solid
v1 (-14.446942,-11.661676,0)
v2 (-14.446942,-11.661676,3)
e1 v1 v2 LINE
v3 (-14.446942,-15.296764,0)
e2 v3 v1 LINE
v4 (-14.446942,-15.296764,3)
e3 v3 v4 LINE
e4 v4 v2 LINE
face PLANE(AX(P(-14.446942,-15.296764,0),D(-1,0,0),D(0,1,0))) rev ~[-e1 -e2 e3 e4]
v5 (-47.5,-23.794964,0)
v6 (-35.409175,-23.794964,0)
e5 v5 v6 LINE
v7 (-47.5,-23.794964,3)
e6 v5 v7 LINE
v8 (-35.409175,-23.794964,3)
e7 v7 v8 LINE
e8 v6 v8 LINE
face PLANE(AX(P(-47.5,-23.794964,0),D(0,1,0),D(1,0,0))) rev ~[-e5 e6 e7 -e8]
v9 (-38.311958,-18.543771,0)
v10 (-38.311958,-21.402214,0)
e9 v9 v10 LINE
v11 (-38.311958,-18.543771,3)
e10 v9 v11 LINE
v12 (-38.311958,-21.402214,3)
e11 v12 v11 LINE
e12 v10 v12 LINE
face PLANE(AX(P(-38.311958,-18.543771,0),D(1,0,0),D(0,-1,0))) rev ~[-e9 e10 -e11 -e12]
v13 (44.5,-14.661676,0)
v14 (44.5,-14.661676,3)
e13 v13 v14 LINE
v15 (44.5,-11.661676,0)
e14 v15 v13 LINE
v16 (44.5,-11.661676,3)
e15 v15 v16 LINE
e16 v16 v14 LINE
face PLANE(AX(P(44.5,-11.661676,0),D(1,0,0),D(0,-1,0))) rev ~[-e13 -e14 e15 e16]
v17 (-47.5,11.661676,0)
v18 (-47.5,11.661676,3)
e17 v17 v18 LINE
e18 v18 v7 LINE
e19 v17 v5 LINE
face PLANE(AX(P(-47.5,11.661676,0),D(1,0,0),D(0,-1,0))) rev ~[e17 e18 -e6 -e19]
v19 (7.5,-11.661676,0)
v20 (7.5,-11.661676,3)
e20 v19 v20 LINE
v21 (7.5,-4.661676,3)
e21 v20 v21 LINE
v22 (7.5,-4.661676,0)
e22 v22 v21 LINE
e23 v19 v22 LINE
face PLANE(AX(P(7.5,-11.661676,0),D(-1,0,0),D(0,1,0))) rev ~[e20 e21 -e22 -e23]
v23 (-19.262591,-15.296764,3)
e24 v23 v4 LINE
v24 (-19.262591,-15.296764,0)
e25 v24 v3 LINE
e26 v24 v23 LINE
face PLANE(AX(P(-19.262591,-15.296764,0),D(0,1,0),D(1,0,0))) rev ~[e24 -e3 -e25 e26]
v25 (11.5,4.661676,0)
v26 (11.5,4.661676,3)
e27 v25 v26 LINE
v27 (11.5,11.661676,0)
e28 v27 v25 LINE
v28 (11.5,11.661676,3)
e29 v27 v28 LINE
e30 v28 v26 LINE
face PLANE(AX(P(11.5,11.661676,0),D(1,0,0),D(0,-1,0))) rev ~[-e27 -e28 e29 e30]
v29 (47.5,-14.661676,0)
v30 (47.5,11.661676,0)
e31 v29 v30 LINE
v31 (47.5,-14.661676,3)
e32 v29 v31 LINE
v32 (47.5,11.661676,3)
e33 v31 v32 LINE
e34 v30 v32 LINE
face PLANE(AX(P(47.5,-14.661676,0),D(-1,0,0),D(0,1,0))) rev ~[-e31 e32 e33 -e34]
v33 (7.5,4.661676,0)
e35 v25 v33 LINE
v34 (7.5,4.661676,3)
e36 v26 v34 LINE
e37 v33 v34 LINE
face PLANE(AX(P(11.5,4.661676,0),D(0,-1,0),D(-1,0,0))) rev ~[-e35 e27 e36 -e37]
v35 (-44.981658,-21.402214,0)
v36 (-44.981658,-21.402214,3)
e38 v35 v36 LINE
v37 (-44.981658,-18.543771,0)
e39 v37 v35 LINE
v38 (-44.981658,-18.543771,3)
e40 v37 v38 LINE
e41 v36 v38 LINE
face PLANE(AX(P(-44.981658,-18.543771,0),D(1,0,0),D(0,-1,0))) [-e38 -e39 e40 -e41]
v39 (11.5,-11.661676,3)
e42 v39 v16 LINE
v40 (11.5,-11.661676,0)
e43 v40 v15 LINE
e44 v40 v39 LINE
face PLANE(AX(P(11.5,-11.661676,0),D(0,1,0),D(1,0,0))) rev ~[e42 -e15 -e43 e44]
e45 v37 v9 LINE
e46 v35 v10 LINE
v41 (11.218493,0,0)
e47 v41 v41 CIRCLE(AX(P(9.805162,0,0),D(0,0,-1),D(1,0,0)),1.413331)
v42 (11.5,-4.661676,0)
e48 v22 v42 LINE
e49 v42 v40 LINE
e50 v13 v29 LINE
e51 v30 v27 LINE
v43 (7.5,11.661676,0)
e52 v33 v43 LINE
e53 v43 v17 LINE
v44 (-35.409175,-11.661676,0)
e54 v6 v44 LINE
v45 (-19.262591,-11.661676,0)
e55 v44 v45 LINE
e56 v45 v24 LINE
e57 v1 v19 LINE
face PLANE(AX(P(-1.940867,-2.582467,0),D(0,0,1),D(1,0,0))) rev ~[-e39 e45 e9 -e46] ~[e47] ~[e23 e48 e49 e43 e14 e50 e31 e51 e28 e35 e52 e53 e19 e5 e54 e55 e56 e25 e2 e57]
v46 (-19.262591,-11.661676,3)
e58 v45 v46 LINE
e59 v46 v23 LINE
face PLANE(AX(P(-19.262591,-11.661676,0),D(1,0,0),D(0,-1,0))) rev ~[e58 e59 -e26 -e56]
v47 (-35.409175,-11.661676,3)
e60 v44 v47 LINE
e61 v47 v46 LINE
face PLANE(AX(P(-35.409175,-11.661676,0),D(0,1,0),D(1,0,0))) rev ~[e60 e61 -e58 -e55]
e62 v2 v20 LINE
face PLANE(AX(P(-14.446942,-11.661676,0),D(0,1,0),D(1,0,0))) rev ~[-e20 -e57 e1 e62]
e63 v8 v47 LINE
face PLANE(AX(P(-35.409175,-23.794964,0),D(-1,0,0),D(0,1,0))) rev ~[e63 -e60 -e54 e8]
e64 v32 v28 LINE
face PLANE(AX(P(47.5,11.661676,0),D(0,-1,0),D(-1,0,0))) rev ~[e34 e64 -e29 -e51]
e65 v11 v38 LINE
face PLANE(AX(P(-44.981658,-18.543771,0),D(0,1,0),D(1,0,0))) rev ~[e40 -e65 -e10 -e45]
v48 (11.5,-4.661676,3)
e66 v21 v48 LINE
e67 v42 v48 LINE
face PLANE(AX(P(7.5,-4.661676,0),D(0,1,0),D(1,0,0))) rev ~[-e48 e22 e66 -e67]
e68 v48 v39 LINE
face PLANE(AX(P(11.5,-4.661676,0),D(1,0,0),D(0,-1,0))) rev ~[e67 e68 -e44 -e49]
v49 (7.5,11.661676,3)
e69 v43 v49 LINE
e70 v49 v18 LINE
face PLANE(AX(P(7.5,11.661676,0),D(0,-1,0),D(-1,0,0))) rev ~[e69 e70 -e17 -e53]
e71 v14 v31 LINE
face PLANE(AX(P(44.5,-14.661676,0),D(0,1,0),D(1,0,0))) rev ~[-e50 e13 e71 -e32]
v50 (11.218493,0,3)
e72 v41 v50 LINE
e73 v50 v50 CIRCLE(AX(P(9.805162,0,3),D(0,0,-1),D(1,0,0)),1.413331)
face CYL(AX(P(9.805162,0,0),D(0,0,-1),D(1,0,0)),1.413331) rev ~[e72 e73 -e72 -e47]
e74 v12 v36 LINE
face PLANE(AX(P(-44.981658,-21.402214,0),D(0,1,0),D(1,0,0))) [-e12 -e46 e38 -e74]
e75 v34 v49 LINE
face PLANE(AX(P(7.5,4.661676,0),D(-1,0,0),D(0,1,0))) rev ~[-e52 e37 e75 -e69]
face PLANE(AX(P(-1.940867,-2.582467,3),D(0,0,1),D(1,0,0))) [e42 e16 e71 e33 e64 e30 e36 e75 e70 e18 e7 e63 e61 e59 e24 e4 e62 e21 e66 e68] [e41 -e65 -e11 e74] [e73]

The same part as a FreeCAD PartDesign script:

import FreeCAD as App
import Part
import Sketcher
from FreeCAD import Vector
Q = App.Units.Quantity

doc = App.newDocument("Part")
body = doc.addObject("PartDesign::Body", "Body")

sketch1 = body.newObject("Sketcher::SketchObject", "Sketch")
sketch1.AttachmentSupport = (doc.getObject("XY_Plane"), [""])
sketch1.MapMode = "FlatFace"
sketch1.addGeometry(Part.LineSegment(Vector(7.5, 11.7, 0), Vector(-47.5, 11.7, 0)), False)
sketch1.addGeometry(Part.LineSegment(Vector(-47.5, 11.7, 0), Vector(-47.5, -23.8, 0)), False)
sketch1.addGeometry(Part.LineSegment(Vector(-47.5, -23.8, 0), Vector(-35.4, -23.8, 0)), False)
sketch1.addGeometry(Part.LineSegment(Vector(-35.4, -23.8, 0), Vector(-35.4, -11.7, 0)), False)
sketch1.addGeometry(Part.LineSegment(Vector(-35.4, -11.7, 0), Vector(-19.3, -11.7, 0)), False)
sketch1.addGeometry(Part.LineSegment(Vector(-19.3, -11.7, 0), Vector(-19.3, -15.3, 0)), False)
sketch1.addGeometry(Part.LineSegment(Vector(-19.3, -15.3, 0), Vector(-14.4, -15.3, 0)), False)
sketch1.addGeometry(Part.LineSegment(Vector(-14.4, -15.3, 0), Vector(-14.4, -11.7, 0)), False)
sketch1.addGeometry(Part.LineSegment(Vector(-14.4, -11.7, 0), Vector(7.5, -11.7, 0)), False)
sketch1.addGeometry(Part.LineSegment(Vector(7.5, -11.7, 0), Vector(7.5, -4.7, 0)), False)
sketch1.addGeometry(Part.LineSegment(Vector(7.5, -4.7, 0), Vector(11.5, -4.7, 0)), False)
sketch1.addGeometry(Part.LineSegment(Vector(11.5, -4.7, 0), Vector(11.5, -11.7, 0)), False)
sketch1.addGeometry(Part.LineSegment(Vector(11.5, -11.7, 0), Vector(44.5, -11.7, 0)), False)
sketch1.addGeometry(Part.LineSegment(Vector(44.5, -11.7, 0), Vector(44.5, -14.7, 0)), False)
sketch1.addGeometry(Part.LineSegment(Vector(44.5, -14.7, 0), Vector(47.5, -14.7, 0)), False)
sketch1.addGeometry(Part.LineSegment(Vector(47.5, -14.7, 0), Vector(47.5, 11.7, 0)), False)
sketch1.addGeometry(Part.LineSegment(Vector(47.5, 11.7, 0), Vector(11.5, 11.7, 0)), False)
sketch1.addGeometry(Part.LineSegment(Vector(11.5, 11.7, 0), Vector(11.5, 4.7, 0)), False)
sketch1.addGeometry(Part.LineSegment(Vector(11.5, 4.7, 0), Vector(7.5, 4.7, 0)), False)
sketch1.addGeometry(Part.LineSegment(Vector(7.5, 4.7, 0), Vector(7.5, 11.7, 0)), False)
sketch1.addConstraint(Sketcher.Constraint("Coincident", 0, 2, 1, 1))
sketch1.addConstraint(Sketcher.Constraint("Coincident", 1, 2, 2, 1))
sketch1.addConstraint(Sketcher.Constraint("Coincident", 2, 2, 3, 1))
sketch1.addConstraint(Sketcher.Constraint("Coincident", 3, 2, 4, 1))
sketch1.addConstraint(Sketcher.Constraint("Coincident", 4, 2, 5, 1))
sketch1.addConstraint(Sketcher.Constraint("Coincident", 5, 2, 6, 1))
sketch1.addConstraint(Sketcher.Constraint("Coincident", 6, 2, 7, 1))
sketch1.addConstraint(Sketcher.Constraint("Coincident", 7, 2, 8, 1))
sketch1.addConstraint(Sketcher.Constraint("Coincident", 8, 2, 9, 1))
sketch1.addConstraint(Sketcher.Constraint("Coincident", 9, 2, 10, 1))
sketch1.addConstraint(Sketcher.Constraint("Coincident", 10, 2, 11, 1))
sketch1.addConstraint(Sketcher.Constraint("Coincident", 11, 2, 12, 1))
sketch1.addConstraint(Sketcher.Constraint("Coincident", 12, 2, 13, 1))
sketch1.addConstraint(Sketcher.Constraint("Coincident", 13, 2, 14, 1))
sketch1.addConstraint(Sketcher.Constraint("Coincident", 14, 2, 15, 1))
sketch1.addConstraint(Sketcher.Constraint("Coincident", 15, 2, 16, 1))
sketch1.addConstraint(Sketcher.Constraint("Coincident", 16, 2, 17, 1))
sketch1.addConstraint(Sketcher.Constraint("Coincident", 17, 2, 18, 1))
sketch1.addConstraint(Sketcher.Constraint("Coincident", 18, 2, 19, 1))
sketch1.addConstraint(Sketcher.Constraint("Coincident", 19, 2, 0, 1))
sketch1.addConstraint(Sketcher.Constraint("Horizontal", 0))
sketch1.addConstraint(Sketcher.Constraint("Vertical", 1))
sketch1.addConstraint(Sketcher.Constraint("Horizontal", 2))
sketch1.addConstraint(Sketcher.Constraint("Vertical", 3))
sketch1.addConstraint(Sketcher.Constraint("Horizontal", 4))
sketch1.addConstraint(Sketcher.Constraint("Vertical", 5))
sketch1.addConstraint(Sketcher.Constraint("Horizontal", 6))
sketch1.addConstraint(Sketcher.Constraint("Vertical", 7))
sketch1.addConstraint(Sketcher.Constraint("Horizontal", 8))
sketch1.addConstraint(Sketcher.Constraint("Vertical", 9))
sketch1.addConstraint(Sketcher.Constraint("Horizontal", 10))
sketch1.addConstraint(Sketcher.Constraint("Vertical", 11))
sketch1.addConstraint(Sketcher.Constraint("Horizontal", 12))
sketch1.addConstraint(Sketcher.Constraint("Vertical", 13))
sketch1.addConstraint(Sketcher.Constraint("Horizontal", 14))
sketch1.addConstraint(Sketcher.Constraint("Vertical", 15))
sketch1.addConstraint(Sketcher.Constraint("Horizontal", 16))
sketch1.addConstraint(Sketcher.Constraint("Vertical", 17))
sketch1.addConstraint(Sketcher.Constraint("Horizontal", 18))
sketch1.addConstraint(Sketcher.Constraint("Vertical", 19))
sketch1.addConstraint(Sketcher.Constraint("Symmetric", 0, 2, 15, 2, -2))
sketch1.addConstraint(Sketcher.Constraint("Symmetric", 11, 2, 16, 2, -1))
sketch1.addConstraint(Sketcher.Constraint("Symmetric", 9, 2, 18, 2, -1))
sketch1.addConstraint(Sketcher.Constraint("Horizontal", 4, 2, 7, 2))
sketch1.addConstraint(Sketcher.Constraint("Horizontal", 8, 2, 11, 2))
sketch1.addConstraint(Sketcher.Constraint("Equal", 14, 13))
sketch1.addConstraint(Sketcher.Constraint("DistanceX", 0, 2, 0, 1, Q("55 mm")))
sketch1.addConstraint(Sketcher.Constraint("DistanceX", 10, 1, 10, 2, Q("4 mm")))
sketch1.addConstraint(Sketcher.Constraint("DistanceX", 12, 1, 12, 2, Q("33 mm")))
sketch1.addConstraint(Sketcher.Constraint("DistanceX", 14, 1, 14, 2, Q("3 mm")))
sketch1.addConstraint(Sketcher.Constraint("DistanceY", 9, 1, 9, 2, Q("7 mm")))
sketch1.addConstraint(Sketcher.Constraint("DistanceX", 6, 1, 6, 2, Q("4.815649 mm")))
sketch1.addConstraint(Sketcher.Constraint("DistanceX", 8, 1, 8, 2, Q("21.946942 mm")))
sketch1.addConstraint(Sketcher.Constraint("DistanceY", 1, 2, 1, 1, Q("35.45664 mm")))
sketch1.addConstraint(Sketcher.Constraint("DistanceY", 15, 1, 15, 2, Q("26.323352 mm")))
sketch1.addConstraint(Sketcher.Constraint("DistanceY", 2, 2, 5, 2, Q("8.4982 mm")))
sketch1.addConstraint(Sketcher.Constraint("DistanceX", 2, 1, 2, 2, Q("12.090825 mm")))
pad1 = body.newObject("PartDesign::Pad", "Pad")
pad1.Profile = sketch1
pad1.Length = 3

sketch2 = body.newObject("Sketcher::SketchObject", "Sketch001")
sketch2.AttachmentSupport = (doc.getObject("XY_Plane"), [""])
sketch2.MapMode = "FlatFace"
sketch2.addGeometry(Part.LineSegment(Vector(-45, -21.4, 0), Vector(-45, -18.5, 0)), False)
sketch2.addGeometry(Part.LineSegment(Vector(-45, -18.5, 0), Vector(-38.3, -18.5, 0)), False)
sketch2.addGeometry(Part.LineSegment(Vector(-38.3, -18.5, 0), Vector(-38.3, -21.4, 0)), False)
sketch2.addGeometry(Part.LineSegment(Vector(-38.3, -21.4, 0), Vector(-45, -21.4, 0)), False)
sketch2.addGeometry(Part.Circle(Vector(9.8, 0, 0), Vector(0, 0, 1), 1.4), False)
sketch2.addConstraint(Sketcher.Constraint("Coincident", 0, 2, 1, 1))
sketch2.addConstraint(Sketcher.Constraint("Coincident", 1, 2, 2, 1))
sketch2.addConstraint(Sketcher.Constraint("Coincident", 2, 2, 3, 1))
sketch2.addConstraint(Sketcher.Constraint("Coincident", 3, 2, 0, 1))
sketch2.addConstraint(Sketcher.Constraint("Vertical", 0))
sketch2.addConstraint(Sketcher.Constraint("Horizontal", 1))
sketch2.addConstraint(Sketcher.Constraint("Vertical", 2))
sketch2.addConstraint(Sketcher.Constraint("Horizontal", 3))
sketch2.addConstraint(Sketcher.Constraint("PointOnObject", 4, 3, -1))
sketch2.addConstraint(Sketcher.Constraint("Diameter", 4, Q("2.826662 mm")))
sketch2.addConstraint(Sketcher.Constraint("DistanceX", 1, 1, 1, 2, Q("6.6697 mm")))
sketch2.addConstraint(Sketcher.Constraint("DistanceY", 0, 1, 0, 2, Q("2.858443 mm")))
sketch2.addConstraint(Sketcher.Constraint("DistanceX", -1, 1, 4, 3, Q("9.805162 mm")))
sketch2.addConstraint(Sketcher.Constraint("DistanceX", 0, 2, -1, 1, Q("44.981658 mm")))
sketch2.addConstraint(Sketcher.Constraint("DistanceY", 0, 2, -1, 1, Q("18.543771 mm")))
pocket1 = body.newObject("PartDesign::Pocket", "Pocket")
pocket1.Profile = sketch2
pocket1.Length = 25
pocket1.Reversed = True

doc.recompute()
